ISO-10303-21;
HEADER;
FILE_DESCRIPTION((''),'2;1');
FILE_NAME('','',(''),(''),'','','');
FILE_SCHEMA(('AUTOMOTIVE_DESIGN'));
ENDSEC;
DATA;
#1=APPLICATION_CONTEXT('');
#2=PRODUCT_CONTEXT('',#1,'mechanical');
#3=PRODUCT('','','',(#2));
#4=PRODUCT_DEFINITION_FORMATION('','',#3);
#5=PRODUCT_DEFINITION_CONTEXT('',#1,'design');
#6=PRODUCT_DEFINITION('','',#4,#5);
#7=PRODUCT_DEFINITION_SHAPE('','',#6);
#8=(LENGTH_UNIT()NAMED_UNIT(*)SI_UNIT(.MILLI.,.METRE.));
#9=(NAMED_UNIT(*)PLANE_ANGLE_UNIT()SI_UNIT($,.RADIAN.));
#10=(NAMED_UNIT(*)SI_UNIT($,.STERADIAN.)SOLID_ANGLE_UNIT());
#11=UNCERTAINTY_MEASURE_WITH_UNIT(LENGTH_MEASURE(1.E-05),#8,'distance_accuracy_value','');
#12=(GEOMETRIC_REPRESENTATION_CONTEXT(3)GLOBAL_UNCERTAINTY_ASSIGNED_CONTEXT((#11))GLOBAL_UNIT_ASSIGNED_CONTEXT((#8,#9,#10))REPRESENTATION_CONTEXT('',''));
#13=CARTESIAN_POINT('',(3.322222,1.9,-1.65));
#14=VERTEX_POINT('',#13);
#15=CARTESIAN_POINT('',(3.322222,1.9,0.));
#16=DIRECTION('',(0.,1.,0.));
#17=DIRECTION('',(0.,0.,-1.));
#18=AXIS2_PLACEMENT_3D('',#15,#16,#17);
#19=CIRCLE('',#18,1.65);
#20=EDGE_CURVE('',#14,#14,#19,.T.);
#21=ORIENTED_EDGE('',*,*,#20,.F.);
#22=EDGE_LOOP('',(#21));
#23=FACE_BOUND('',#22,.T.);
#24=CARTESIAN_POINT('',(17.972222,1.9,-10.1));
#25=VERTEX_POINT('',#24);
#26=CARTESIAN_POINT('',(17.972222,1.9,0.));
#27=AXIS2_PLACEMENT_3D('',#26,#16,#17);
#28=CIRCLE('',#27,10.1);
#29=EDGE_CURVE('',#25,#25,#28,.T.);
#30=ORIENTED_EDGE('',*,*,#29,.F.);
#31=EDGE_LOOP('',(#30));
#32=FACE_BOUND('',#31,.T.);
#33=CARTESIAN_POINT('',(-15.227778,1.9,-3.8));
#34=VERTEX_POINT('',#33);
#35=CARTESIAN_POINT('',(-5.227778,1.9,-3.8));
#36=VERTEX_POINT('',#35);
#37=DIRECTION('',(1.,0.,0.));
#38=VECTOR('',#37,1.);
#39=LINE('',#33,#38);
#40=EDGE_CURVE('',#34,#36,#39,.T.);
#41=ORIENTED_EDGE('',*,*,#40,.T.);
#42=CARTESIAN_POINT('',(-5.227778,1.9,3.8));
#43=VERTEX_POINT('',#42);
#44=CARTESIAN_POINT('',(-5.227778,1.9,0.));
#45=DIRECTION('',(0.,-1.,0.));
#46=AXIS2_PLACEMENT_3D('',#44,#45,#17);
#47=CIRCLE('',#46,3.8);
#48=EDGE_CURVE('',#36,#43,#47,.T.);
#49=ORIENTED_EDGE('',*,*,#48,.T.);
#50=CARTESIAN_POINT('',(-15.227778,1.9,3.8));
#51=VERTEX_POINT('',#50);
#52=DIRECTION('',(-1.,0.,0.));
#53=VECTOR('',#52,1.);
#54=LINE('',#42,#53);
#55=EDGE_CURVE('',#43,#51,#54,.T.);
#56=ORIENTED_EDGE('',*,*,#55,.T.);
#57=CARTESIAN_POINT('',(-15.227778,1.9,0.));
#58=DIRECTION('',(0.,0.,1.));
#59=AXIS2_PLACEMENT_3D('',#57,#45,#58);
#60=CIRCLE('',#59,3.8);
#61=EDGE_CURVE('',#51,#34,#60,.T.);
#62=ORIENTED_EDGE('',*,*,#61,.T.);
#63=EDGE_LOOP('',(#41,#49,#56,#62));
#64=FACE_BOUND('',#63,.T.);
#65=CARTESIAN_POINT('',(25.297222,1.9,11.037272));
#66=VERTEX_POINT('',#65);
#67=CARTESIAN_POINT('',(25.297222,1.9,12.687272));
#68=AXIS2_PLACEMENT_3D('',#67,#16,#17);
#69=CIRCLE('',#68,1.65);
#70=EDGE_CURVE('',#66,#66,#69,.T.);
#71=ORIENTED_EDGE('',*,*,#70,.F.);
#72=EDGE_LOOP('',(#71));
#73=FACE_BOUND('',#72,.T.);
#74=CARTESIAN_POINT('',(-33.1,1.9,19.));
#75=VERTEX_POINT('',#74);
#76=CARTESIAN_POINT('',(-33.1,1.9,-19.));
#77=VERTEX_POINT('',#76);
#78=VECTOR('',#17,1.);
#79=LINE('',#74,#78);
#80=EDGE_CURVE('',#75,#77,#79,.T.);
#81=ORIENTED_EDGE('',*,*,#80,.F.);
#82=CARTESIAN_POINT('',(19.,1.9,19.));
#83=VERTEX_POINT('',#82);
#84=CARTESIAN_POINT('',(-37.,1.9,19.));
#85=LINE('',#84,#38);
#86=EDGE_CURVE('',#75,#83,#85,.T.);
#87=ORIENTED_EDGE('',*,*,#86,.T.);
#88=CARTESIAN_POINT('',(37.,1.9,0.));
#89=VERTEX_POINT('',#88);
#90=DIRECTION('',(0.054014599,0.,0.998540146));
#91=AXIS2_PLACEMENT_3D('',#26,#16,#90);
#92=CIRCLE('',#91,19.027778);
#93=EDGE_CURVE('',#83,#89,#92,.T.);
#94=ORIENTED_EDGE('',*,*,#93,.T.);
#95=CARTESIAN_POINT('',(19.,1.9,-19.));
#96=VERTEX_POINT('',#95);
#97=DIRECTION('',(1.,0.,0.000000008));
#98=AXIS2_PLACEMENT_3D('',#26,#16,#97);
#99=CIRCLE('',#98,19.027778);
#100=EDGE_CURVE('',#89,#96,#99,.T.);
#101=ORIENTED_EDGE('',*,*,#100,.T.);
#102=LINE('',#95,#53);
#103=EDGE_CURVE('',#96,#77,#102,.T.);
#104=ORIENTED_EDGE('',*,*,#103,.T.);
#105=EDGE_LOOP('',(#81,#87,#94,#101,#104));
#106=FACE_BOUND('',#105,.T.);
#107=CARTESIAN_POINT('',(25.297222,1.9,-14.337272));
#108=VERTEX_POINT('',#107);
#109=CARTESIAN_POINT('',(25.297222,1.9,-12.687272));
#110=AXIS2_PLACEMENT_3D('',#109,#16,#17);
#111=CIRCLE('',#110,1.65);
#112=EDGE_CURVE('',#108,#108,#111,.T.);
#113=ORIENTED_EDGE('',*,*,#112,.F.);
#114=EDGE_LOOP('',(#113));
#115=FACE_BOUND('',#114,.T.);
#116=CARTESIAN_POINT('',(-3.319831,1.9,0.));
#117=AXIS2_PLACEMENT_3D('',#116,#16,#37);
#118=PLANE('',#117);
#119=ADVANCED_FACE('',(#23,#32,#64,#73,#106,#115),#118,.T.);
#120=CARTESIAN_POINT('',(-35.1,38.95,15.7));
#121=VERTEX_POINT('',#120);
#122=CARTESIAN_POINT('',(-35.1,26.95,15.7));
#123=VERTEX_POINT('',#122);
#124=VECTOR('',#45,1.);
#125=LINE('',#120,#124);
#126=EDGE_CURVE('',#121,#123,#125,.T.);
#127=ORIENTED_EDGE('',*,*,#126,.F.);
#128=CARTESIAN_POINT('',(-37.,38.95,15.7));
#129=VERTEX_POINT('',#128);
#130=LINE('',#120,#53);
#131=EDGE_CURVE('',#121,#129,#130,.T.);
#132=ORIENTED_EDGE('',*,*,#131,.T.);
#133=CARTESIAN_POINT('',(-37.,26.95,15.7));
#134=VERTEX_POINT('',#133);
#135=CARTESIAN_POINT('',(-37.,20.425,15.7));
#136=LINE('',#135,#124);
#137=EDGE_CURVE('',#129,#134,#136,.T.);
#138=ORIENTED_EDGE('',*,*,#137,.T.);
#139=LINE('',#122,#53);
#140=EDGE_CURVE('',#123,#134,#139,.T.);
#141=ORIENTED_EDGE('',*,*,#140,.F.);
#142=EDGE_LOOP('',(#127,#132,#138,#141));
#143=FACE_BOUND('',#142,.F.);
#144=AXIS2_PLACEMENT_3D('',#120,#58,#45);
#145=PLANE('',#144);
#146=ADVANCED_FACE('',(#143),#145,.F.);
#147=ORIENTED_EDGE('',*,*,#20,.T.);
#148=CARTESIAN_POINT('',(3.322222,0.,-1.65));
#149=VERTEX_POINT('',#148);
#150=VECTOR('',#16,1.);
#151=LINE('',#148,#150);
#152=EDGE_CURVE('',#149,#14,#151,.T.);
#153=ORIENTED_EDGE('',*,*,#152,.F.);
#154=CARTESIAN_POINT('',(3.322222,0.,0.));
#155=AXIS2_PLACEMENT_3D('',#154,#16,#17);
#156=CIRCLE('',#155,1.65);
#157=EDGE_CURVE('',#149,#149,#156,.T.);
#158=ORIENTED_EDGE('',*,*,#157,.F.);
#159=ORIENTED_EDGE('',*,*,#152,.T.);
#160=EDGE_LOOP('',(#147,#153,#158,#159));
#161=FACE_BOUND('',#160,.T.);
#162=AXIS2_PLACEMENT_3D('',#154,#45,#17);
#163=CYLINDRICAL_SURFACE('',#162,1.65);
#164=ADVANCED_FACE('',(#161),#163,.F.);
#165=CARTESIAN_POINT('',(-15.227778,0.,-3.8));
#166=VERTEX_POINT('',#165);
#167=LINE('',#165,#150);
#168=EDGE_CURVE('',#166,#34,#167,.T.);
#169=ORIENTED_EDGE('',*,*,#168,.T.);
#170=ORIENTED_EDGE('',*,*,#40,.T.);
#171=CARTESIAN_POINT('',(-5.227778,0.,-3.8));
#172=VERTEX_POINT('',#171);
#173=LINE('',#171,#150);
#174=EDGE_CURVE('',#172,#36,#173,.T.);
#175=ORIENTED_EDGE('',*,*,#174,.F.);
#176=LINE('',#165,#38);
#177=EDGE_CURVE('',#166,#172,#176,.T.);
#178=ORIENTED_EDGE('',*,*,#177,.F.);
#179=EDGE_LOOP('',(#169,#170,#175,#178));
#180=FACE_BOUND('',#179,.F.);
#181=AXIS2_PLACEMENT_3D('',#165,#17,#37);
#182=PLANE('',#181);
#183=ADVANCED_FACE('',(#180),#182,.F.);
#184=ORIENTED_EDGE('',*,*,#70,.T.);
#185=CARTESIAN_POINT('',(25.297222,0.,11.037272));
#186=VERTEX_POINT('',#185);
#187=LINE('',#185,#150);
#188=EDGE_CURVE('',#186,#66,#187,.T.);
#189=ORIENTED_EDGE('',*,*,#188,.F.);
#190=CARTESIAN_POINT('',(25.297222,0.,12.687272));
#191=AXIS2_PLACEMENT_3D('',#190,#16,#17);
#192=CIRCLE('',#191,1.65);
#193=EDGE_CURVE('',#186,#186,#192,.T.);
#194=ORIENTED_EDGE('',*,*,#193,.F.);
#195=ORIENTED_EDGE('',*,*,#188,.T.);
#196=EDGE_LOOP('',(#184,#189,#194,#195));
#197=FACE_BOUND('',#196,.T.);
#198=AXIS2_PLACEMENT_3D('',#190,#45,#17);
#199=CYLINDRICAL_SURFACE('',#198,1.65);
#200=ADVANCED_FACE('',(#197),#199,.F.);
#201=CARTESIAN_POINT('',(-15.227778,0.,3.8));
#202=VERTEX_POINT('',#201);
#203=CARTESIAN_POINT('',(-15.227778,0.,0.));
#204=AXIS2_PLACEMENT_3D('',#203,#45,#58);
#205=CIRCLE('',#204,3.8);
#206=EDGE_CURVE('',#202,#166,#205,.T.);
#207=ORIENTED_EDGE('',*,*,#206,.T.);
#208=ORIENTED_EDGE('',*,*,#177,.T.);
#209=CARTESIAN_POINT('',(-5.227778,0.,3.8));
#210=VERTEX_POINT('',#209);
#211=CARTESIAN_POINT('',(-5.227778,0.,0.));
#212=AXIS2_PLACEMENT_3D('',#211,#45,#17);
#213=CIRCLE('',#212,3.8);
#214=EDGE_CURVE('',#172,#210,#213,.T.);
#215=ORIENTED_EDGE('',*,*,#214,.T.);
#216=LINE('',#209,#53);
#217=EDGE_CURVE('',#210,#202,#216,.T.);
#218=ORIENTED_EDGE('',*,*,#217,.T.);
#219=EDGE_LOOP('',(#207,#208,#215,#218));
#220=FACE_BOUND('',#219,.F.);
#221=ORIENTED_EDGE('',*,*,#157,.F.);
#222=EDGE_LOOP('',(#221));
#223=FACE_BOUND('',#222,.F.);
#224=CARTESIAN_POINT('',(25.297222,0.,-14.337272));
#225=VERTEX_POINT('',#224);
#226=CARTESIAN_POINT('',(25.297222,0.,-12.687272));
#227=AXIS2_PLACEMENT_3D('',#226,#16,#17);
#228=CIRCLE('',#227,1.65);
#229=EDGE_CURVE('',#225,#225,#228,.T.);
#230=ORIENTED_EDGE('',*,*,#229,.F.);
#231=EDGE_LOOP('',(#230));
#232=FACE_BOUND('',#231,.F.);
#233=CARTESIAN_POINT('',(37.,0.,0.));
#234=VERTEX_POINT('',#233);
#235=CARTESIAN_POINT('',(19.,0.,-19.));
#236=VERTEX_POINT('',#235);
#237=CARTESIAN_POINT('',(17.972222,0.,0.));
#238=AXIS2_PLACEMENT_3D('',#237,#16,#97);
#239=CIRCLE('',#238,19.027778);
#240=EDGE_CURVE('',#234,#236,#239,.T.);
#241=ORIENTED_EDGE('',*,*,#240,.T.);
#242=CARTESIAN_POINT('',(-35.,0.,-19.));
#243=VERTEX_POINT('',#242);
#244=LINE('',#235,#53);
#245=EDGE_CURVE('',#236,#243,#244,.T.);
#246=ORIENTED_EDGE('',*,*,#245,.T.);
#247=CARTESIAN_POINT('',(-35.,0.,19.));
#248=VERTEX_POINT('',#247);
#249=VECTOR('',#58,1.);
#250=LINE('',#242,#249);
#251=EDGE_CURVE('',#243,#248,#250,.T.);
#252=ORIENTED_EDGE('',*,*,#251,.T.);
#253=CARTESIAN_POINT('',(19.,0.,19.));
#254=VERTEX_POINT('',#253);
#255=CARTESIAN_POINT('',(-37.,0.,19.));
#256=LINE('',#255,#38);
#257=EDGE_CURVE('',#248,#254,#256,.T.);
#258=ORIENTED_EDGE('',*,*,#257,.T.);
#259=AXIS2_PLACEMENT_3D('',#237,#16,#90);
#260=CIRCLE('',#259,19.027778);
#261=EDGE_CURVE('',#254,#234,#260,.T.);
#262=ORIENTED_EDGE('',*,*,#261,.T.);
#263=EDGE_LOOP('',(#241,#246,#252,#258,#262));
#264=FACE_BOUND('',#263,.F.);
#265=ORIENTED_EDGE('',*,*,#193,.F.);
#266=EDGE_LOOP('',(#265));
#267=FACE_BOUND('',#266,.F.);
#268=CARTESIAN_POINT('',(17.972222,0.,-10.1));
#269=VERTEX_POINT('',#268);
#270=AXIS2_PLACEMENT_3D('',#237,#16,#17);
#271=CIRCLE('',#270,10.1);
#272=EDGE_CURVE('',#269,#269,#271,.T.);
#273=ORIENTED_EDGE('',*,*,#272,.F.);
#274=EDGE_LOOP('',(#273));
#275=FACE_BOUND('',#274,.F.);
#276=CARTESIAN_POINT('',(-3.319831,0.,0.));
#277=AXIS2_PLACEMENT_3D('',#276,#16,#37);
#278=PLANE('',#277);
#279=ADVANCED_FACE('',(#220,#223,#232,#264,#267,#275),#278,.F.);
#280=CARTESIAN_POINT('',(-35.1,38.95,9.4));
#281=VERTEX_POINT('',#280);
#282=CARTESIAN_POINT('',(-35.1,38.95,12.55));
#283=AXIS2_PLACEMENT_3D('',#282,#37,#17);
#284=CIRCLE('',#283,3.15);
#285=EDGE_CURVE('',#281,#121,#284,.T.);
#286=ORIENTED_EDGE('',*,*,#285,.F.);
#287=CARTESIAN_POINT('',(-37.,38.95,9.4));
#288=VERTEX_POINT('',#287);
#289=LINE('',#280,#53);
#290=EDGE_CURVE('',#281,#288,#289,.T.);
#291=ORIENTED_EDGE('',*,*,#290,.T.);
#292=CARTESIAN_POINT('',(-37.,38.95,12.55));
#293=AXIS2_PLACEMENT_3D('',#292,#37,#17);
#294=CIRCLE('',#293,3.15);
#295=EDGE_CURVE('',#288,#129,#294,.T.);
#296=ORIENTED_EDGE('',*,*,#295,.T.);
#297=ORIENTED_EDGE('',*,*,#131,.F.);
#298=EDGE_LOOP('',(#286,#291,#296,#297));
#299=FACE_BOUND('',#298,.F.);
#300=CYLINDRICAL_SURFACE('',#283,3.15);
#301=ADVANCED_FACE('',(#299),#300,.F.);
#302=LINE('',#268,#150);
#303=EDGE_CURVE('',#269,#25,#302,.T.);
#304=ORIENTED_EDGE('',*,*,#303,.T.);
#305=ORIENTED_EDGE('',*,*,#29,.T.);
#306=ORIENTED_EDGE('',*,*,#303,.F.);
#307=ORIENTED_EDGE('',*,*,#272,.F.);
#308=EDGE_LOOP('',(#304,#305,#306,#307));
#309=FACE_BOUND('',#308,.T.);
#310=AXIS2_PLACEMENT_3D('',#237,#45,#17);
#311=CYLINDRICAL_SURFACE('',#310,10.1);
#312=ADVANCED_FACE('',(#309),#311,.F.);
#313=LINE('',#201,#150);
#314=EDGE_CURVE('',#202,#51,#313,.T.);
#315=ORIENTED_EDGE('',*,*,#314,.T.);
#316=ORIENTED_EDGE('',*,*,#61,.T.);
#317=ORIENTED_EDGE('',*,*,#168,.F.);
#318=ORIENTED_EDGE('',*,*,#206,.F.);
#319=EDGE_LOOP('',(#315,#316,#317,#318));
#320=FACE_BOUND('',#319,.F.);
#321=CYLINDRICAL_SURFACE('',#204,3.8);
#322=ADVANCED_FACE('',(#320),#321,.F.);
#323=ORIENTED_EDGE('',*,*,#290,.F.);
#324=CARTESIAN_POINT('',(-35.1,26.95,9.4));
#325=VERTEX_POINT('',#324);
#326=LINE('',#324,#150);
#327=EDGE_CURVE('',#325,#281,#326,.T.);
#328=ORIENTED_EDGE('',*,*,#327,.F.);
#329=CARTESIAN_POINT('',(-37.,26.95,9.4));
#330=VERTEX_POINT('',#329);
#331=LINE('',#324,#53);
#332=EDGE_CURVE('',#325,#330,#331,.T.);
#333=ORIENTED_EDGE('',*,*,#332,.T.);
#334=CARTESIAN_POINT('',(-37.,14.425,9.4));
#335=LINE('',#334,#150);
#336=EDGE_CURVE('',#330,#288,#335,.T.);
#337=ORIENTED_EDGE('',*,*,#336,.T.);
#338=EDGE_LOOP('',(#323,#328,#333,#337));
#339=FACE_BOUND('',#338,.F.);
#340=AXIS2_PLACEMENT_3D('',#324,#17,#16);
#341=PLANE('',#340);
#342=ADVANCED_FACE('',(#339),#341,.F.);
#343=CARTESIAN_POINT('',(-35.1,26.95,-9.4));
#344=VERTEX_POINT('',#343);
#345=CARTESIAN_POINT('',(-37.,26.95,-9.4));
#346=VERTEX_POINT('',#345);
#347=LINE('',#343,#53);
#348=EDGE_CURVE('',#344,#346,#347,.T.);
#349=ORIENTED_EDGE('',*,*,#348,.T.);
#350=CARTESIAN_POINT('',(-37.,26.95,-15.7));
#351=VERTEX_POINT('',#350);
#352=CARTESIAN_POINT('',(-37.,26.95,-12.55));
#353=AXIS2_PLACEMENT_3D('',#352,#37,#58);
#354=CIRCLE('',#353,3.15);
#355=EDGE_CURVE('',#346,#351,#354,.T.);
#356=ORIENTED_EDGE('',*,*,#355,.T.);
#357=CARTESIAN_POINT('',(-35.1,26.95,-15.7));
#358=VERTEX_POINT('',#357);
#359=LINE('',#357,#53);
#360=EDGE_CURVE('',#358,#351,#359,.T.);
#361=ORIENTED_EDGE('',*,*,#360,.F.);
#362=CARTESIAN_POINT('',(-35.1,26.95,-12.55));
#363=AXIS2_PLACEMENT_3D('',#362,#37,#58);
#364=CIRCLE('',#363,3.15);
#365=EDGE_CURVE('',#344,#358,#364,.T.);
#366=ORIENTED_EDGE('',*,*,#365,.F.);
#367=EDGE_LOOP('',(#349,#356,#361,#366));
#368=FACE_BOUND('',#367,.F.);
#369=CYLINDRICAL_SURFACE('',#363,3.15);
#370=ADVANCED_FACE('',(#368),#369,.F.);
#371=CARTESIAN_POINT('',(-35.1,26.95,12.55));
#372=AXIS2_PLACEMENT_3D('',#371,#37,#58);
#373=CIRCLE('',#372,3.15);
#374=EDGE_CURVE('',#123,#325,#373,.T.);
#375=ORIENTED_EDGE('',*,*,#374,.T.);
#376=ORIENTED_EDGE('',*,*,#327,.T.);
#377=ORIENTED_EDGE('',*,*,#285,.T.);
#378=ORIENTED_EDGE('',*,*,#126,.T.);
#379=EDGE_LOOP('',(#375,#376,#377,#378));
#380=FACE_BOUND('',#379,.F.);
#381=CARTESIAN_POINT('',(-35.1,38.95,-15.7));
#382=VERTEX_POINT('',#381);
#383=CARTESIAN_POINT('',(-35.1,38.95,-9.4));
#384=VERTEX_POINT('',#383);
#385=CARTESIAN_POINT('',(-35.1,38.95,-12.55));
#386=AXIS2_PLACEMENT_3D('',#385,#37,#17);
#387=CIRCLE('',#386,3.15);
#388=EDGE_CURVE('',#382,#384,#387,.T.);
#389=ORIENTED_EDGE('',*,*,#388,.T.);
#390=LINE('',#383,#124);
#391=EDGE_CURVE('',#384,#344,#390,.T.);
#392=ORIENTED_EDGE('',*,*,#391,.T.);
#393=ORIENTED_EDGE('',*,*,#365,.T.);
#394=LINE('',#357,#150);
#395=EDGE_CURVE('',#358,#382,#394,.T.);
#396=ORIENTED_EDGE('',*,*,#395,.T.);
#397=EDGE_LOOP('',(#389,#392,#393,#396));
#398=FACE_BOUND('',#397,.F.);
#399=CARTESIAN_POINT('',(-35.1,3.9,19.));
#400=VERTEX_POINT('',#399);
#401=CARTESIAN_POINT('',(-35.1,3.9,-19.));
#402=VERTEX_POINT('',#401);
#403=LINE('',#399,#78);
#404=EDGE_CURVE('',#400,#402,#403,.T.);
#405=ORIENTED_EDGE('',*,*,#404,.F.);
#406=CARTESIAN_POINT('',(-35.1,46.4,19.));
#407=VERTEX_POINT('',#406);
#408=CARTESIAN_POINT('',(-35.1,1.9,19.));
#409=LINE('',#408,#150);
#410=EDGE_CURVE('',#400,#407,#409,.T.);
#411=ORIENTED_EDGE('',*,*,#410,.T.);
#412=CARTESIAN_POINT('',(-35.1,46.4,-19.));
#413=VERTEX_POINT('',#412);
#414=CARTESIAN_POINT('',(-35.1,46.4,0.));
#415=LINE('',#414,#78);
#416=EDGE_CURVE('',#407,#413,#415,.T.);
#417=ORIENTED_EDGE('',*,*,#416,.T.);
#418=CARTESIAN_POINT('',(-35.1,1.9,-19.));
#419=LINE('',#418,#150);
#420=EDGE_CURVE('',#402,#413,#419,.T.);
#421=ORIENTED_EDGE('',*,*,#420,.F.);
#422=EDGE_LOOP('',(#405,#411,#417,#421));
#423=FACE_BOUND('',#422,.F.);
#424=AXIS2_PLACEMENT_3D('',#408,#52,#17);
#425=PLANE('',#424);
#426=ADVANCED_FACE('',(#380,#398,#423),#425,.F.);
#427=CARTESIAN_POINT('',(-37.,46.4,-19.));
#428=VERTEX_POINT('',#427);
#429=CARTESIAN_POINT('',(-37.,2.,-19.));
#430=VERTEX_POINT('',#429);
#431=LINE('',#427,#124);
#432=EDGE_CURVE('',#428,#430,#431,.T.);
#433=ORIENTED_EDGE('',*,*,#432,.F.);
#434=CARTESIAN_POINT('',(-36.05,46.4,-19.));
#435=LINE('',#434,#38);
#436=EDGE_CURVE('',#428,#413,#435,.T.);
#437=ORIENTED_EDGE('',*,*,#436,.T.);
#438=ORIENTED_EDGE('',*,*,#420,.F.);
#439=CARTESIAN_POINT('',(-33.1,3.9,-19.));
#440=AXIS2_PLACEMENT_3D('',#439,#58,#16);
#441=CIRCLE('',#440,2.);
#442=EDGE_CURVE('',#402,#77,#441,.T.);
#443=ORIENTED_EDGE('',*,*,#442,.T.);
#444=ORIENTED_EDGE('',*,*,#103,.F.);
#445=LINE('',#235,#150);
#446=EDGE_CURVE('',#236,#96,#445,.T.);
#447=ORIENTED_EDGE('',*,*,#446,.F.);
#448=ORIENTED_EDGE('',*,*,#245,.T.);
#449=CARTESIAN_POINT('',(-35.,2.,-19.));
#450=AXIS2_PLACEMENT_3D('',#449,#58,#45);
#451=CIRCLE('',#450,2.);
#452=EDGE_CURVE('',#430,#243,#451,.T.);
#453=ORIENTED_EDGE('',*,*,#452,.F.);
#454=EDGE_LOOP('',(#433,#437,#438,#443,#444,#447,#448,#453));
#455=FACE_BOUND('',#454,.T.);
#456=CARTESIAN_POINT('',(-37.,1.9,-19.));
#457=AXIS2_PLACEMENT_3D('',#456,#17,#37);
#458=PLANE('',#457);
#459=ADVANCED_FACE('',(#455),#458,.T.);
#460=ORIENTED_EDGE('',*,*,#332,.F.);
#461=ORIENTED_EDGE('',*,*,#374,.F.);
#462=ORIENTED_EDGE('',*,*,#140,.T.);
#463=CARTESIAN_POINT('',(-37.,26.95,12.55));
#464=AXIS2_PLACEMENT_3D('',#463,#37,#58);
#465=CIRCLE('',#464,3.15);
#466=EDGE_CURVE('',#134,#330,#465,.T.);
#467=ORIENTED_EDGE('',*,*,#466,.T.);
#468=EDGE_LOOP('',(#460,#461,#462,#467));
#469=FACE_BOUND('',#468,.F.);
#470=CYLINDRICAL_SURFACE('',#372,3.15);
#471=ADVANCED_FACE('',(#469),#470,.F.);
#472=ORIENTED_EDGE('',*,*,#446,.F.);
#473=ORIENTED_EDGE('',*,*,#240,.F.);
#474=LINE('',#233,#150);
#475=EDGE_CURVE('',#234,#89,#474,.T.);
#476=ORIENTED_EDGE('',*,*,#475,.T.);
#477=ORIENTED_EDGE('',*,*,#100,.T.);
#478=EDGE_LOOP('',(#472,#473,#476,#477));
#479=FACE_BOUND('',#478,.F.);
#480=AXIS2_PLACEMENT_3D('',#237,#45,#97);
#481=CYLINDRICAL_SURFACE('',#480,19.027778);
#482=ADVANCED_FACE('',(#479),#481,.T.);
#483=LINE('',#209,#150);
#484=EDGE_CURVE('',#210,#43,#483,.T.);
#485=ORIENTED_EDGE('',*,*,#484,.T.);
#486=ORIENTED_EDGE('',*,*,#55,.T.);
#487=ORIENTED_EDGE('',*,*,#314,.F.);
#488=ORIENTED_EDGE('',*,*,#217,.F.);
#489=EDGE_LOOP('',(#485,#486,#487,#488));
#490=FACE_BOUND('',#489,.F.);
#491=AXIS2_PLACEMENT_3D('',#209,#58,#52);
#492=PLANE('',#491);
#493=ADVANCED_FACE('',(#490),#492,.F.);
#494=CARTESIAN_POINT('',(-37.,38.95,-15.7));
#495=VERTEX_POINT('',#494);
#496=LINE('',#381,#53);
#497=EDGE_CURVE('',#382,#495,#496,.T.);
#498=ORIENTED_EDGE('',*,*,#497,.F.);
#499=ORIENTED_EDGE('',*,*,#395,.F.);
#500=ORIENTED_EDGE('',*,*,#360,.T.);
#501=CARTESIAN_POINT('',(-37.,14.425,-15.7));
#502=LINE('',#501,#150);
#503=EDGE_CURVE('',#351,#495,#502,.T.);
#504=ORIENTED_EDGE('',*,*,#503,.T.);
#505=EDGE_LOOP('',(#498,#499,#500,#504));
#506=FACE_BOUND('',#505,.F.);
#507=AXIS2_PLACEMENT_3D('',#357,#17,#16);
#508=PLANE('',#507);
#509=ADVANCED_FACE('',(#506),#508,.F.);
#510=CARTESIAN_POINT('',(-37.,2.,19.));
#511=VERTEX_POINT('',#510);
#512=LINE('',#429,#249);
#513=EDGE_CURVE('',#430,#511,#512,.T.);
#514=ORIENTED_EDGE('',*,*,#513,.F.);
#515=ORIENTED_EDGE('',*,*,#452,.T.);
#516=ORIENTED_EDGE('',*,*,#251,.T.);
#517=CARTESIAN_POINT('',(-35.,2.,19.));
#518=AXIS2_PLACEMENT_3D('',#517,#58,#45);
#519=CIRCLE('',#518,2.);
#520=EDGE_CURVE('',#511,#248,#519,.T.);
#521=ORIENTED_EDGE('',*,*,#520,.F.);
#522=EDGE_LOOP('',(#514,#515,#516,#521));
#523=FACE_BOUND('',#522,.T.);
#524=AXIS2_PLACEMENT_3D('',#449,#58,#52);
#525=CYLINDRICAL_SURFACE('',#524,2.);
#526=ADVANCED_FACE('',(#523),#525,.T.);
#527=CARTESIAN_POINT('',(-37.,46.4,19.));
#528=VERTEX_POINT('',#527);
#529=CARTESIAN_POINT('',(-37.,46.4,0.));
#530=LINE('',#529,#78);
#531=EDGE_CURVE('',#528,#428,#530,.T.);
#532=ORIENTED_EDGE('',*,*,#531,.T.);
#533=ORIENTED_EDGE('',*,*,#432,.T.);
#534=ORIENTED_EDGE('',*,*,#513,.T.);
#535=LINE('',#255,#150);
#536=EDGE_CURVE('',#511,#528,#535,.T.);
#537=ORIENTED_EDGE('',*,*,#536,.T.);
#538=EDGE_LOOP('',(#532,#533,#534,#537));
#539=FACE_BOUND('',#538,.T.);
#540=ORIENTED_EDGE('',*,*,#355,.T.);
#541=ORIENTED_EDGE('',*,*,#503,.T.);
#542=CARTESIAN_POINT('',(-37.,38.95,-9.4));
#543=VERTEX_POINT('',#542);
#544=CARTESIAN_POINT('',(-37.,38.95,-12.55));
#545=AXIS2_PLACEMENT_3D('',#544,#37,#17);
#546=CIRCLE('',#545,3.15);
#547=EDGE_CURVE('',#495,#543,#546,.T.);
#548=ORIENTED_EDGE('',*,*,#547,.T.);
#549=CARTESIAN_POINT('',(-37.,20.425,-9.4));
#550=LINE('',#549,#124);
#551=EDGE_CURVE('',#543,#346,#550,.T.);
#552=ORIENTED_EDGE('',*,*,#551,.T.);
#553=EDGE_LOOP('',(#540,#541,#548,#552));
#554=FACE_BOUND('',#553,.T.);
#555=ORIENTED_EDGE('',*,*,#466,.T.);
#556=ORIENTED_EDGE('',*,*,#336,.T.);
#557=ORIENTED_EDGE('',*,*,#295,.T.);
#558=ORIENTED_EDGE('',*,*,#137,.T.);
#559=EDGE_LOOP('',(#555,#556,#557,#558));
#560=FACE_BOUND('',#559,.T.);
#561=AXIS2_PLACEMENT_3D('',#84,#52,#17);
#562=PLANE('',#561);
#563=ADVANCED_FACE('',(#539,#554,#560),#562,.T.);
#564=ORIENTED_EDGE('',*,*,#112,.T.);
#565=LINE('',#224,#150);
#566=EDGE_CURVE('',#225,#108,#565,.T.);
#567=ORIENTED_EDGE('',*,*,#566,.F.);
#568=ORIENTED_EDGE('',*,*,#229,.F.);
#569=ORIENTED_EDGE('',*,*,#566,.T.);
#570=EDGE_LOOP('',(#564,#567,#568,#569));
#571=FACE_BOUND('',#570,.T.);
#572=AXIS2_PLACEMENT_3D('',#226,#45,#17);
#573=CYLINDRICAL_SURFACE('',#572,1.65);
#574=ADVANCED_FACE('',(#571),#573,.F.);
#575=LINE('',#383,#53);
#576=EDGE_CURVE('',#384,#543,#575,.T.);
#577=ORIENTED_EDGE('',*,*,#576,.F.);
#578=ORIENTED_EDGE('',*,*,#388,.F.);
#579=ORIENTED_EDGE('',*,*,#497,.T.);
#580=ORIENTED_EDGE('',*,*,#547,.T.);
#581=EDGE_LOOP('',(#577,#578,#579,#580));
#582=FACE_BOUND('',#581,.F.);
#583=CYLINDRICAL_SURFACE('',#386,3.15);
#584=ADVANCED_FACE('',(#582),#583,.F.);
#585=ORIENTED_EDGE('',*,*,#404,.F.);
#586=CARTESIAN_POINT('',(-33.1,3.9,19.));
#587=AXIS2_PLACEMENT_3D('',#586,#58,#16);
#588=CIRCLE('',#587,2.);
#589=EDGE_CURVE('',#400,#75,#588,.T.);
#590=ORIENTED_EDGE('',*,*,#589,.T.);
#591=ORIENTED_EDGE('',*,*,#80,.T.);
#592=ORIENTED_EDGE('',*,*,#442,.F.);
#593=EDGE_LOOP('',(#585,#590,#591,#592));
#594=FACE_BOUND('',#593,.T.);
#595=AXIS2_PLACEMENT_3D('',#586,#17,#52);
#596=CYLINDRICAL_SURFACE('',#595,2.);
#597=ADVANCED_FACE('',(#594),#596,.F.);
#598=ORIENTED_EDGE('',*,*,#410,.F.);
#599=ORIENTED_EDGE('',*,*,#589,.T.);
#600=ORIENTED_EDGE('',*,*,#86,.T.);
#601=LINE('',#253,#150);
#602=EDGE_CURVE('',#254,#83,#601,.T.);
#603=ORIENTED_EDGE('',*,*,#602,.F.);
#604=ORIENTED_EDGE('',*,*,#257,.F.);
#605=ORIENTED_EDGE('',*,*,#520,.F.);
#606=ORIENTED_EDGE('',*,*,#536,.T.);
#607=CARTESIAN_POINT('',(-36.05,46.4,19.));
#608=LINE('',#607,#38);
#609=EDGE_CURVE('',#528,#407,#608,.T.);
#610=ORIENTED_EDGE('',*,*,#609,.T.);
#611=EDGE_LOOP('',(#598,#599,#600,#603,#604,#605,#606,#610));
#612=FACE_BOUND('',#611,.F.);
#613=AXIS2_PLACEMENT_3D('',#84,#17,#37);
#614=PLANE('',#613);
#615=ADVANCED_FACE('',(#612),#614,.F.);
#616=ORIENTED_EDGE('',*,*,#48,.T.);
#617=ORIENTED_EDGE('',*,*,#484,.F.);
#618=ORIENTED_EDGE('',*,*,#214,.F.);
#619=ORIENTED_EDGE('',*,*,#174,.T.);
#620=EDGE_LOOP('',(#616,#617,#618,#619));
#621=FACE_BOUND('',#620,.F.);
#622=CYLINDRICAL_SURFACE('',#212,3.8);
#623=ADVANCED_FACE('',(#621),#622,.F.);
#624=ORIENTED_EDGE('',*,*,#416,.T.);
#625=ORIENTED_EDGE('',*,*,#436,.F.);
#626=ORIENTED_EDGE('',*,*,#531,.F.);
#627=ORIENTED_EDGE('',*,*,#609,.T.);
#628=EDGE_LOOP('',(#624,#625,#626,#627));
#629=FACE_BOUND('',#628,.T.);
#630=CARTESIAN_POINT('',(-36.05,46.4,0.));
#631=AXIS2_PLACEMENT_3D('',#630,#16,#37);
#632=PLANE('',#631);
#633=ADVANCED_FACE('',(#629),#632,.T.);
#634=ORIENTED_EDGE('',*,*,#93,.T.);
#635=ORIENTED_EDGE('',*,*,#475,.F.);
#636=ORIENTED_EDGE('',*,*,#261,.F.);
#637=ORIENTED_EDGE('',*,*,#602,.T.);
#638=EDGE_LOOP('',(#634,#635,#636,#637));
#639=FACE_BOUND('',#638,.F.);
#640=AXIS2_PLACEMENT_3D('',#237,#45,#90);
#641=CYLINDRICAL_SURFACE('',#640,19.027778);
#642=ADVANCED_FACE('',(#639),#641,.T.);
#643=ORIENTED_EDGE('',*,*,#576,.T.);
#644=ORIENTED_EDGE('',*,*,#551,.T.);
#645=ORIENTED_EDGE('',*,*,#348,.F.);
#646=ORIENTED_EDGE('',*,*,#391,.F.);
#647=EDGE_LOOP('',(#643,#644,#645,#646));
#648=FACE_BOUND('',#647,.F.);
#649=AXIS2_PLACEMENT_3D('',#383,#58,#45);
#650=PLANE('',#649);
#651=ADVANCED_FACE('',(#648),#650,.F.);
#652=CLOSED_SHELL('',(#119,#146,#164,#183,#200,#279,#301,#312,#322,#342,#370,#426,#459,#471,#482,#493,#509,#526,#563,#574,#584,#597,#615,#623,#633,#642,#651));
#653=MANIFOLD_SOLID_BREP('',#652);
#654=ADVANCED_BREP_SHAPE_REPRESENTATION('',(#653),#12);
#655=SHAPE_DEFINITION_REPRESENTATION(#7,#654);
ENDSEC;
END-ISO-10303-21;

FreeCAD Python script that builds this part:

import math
import FreeCAD as App
import Part
import Sketcher
from FreeCAD import Vector


def edges_at(feature, points):
    """Names of the edges that pass closest to the given points."""
    edges = feature.Shape.Edges
    near = lambda p: min(range(len(edges)), key=lambda i: edges[i].distToShape(Part.Vertex(*p))[0])
    return sorted({f"Edge{near(p) + 1}" for p in points})


def add_polygon(sketch, points):
    """Adds a closed chain of lines whose ends are joined by coincident constraints."""
    first, n = sketch.GeometryCount, len(points)
    for a, b in zip(points, points[1:] + points[:1]):
        sketch.addGeometry(Part.LineSegment(App.Vector(*a, 0), App.Vector(*b, 0)), False)
    for i in range(n):
        sketch.addConstraint(Sketcher.Constraint("Coincident", first + i, 2, first + (i + 1) % n, 1))

doc = App.newDocument("Part")
params = doc.addObject("Spreadsheet::Sheet", "Params")
for row, (alias, value) in enumerate([
    ("sketch1_diameter", "3.3 mm"),
    ("sketch1_diameter2", "20.2 mm"),
    ("sketch1_radius", "3.8 mm"),
    ("sketch1_width", "56 mm"),
    ("sketch1_width2", "10 mm"),
    ("pad1_length", "1.9 mm"),
    ("sketch2_height", "38 mm"),
    ("sketch2_width", "1.9 mm"),
    ("pad2_length", "44.5 mm"),
    ("sketch3_radius", "3.15 mm"),
    ("sketch4_radius", "3.15 mm"),
    ("sketch5_radius", "3.15 mm"),
    ("pocket3_length", "1.9 mm"),
    ("sketch6_radius", "3.15 mm"),
    ("pocket4_length", "1.9 mm"),
    ("sketch7_width", "12 mm"),
    ("sketch7_radius", "3.15 mm"),
    ("sketch8_radius", "3.15 mm"),
    ("sketch9_radius", "3.15 mm"),
    ("sketch10_width", "12 mm"),
    ("sketch10_radius", "3.15 mm"),
    ("sketch11_radius", "3.15 mm"),
    ("sketch12_radius", "3.15 mm"),
    ("sketch13_radius", "3.15 mm"),
    ("pocket11_length", "1.9 mm"),
    ("sketch14_radius", "3.15 mm"),
    ("pocket12_length", "1.9 mm"),
    ("sketch15_radius", "3.15 mm"),
    ("sketch16_radius", "3.15 mm"),
    ("sketch17_radius", "3.15 mm"),
    ("pocket15_length", "1.9 mm"),
    ("sketch18_radius", "3.15 mm"),
    ("pocket16_length", "1.9 mm"),
    ("sketch19_radius", "3.15 mm"),
    ("pocket17_length", "1.9 mm"),
    ("sketch20_radius", "3.15 mm"),
    ("pocket18_length", "1.9 mm"),
    ("fillet_radius", "2 mm"),
], start=1):
    params.set(f"A{row}", alias)
    params.set(f"B{row}", "=" + value)
    params.setAlias(f"B{row}", alias)

body = doc.addObject("PartDesign::Body", "Body")
body.AllowCompound = True

sketch1 = body.newObject("Sketcher::SketchObject", "Sketch")
sketch1.AttachmentSupport = (doc.getObject("XZ_Plane"), [""])
sketch1.MapMode = "FlatFace"
sketch1.addGeometry([
    Part.LineSegment(Vector(-37, -19, 0), Vector(-37, 19, 0)),
    Part.LineSegment(Vector(-37, 19, 0), Vector(19, 19, 0)),
    Part.ArcOfCircle(Part.Circle(Vector(18, 0, 0), Vector(0, 0, 1), 19), math.radians(0), math.radians(87)),
    Part.ArcOfCircle(Part.Circle(Vector(18, 0, 0), Vector(0, 0, 1), 19), math.radians(-87), math.radians(0)),
    Part.LineSegment(Vector(19, -19, 0), Vector(-37, -19, 0)),
    Part.Circle(Vector(25.3, 12.7, 0), Vector(0, 0, 1), 1.6),
    Part.LineSegment(Vector(-5.2, 3.8, 0), Vector(-15.2, 3.8, 0)),
    Part.ArcOfCircle(Part.Circle(Vector(-15.2, 0, 0), Vector(0, 0, 1), 3.8), math.radians(90), math.radians(270)),
    Part.LineSegment(Vector(-15.2, -3.8, 0), Vector(-5.2, -3.8, 0)),
    Part.ArcOfCircle(Part.Circle(Vector(-5.2, 0, 0), Vector(0, 0, 1), 3.8), math.radians(-90), math.radians(90)),
    Part.Circle(Vector(3.3, 0, 0), Vector(0, 0, 1), 1.6),
    Part.Circle(Vector(18, 0, 0), Vector(0, 0, 1), 10.1),
    Part.Circle(Vector(25.3, -12.7, 0), Vector(0, 0, 1), 1.6),
], False)
sketch1.addConstraint([
    Sketcher.Constraint("Coincident", 0, 2, 1, 1),
    Sketcher.Constraint("Coincident", 1, 2, 2, 2),
    Sketcher.Constraint("Tangent", 2, 1, 3, 2),
    Sketcher.Constraint("Coincident", 3, 1, 4, 1),
    Sketcher.Constraint("Coincident", 4, 2, 0, 1),
    Sketcher.Constraint("Tangent", 6, 2, 7, 1),
    Sketcher.Constraint("Tangent", 7, 2, 8, 1),
    Sketcher.Constraint("Tangent", 8, 2, 9, 1),
    Sketcher.Constraint("Tangent", 9, 2, 6, 1),
    Sketcher.Constraint("Vertical", 0),
    Sketcher.Constraint("Horizontal", 1),
    Sketcher.Constraint("Horizontal", 4),
    Sketcher.Constraint("Horizontal", 6),
    Sketcher.Constraint("Horizontal", 8),
    Sketcher.Constraint("Coincident", 11, 3, 2, 3),
    Sketcher.Constraint("Equal", 2, 3),
    Sketcher.Constraint("Equal", 5, 10),
    Sketcher.Constraint("Equal", 10, 12),
    Sketcher.Constraint("Symmetric", 5, 3, 12, 3, -1),
    Sketcher.Constraint("Symmetric", 1, 2, 3, 1, -1),
    Sketcher.Constraint("PointOnObject", 7, 3, -1),
    Sketcher.Constraint("PointOnObject", 10, 3, -1),
    Sketcher.Constraint("PointOnObject", 2, 1, -1),
    Sketcher.Constraint("Diameter", 5, 3.3),
    Sketcher.Constraint("Diameter", 11, 20.2),
    Sketcher.Constraint("Radius", 7, 3.8),
    Sketcher.Constraint("DistanceX", 1, 1, 1, 2, 56.0),
    Sketcher.Constraint("DistanceX", 6, 2, 6, 1, 10.0),
    Sketcher.Constraint("DistanceY", 0, 1, 0, 2, 38.0),
    Sketcher.Constraint("DistanceX", 0, 2, -1, 1, 37.0),
    Sketcher.Constraint("DistanceX", -1, 1, 2, 1, 37.0),
    Sketcher.Constraint("DistanceX", 7, 3, 3, 3, 33.2),
    Sketcher.Constraint("DistanceX", 9, 3, 10, 3, 8.55),
    Sketcher.Constraint("DistanceX", 3, 3, 5, 3, 7.325),
    Sketcher.Constraint("DistanceY", -1, 1, 5, 3, 12.687272),
])
sketch1.setExpression("Constraints[23]", "Params.sketch1_diameter")
sketch1.setExpression("Constraints[24]", "Params.sketch1_diameter2")
sketch1.setExpression("Constraints[25]", "Params.sketch1_radius")
sketch1.setExpression("Constraints[26]", "Params.sketch1_width")
sketch1.setExpression("Constraints[27]", "Params.sketch1_width2")
pad1 = body.newObject("PartDesign::Pad", "Pad")
pad1.Profile = sketch1
pad1.setExpression("Length", "Params.pad1_length")
pad1.Reversed = True

sketch2 = body.newObject("Sketcher::SketchObject", "Sketch001")
sketch2.AttachmentSupport = (doc.getObject("XZ_Plane"), [""])
sketch2.MapMode = "FlatFace"
sketch2.AttachmentOffset = App.Placement(Vector(0, 0, -1.9), App.Rotation())
add_polygon(sketch2, [(-37, -19), (-37, 19), (-35.1, 19), (-35.1, -19)])
sketch2.addConstraint([
    Sketcher.Constraint("Vertical", 0),
    Sketcher.Constraint("Horizontal", 1),
    Sketcher.Constraint("Vertical", 2),
    Sketcher.Constraint("Horizontal", 3),
    Sketcher.Constraint("DistanceY", 0, 1, 0, 2, 38.0),
    Sketcher.Constraint("DistanceX", 1, 1, 1, 2, 1.9),
    Sketcher.Constraint("DistanceX", 0, 2, -1, 1, 37.0),
    Sketcher.Constraint("DistanceY", -1, 1, 0, 2, 19.0),
])
sketch2.setExpression("Constraints[8]", "Params.sketch2_height")
sketch2.setExpression("Constraints[9]", "Params.sketch2_width")
pad2 = body.newObject("PartDesign::Pad", "Pad001")
pad2.Profile = sketch2
pad2.setExpression("Length", "Params.pad2_length")
pad2.Reversed = True

sketch3 = body.newObject("Sketcher::SketchObject", "Sketch002")
sketch3.AttachmentSupport = (doc.getObject("YZ_Plane"), [""])
sketch3.MapMode = "FlatFace"
sketch3.AttachmentOffset = App.Placement(Vector(0, 0, -35.1), App.Rotation())
sketch3.addGeometry([
    Part.ArcOfCircle(Part.Circle(Vector(39, 12.6, 0), Vector(0, 0, 1), 3.1), math.radians(-90), math.radians(90)),
    Part.LineSegment(Vector(39, 15.7, 0), Vector(39, 9.4, 0)),
], False)
sketch3.addConstraint([
    Sketcher.Constraint("Coincident", 0, 1, 1, 2),
    Sketcher.Constraint("Coincident", 1, 1, 0, 2),
    Sketcher.Constraint("Vertical", 1),
    Sketcher.Constraint("Radius", 0, 3.15),
    Sketcher.Constraint("DistanceY", -1, 1, 0, 1, 9.4),
    Sketcher.Constraint("DistanceX", -1, 1, 0, 3, 38.95),
    Sketcher.Constraint("DistanceX", -1, 1, 0, 1, 38.95),
])
sketch3.setExpression("Constraints[3]", "Params.sketch3_radius")
pocket1 = body.newObject("PartDesign::Pocket", "Pocket")
pocket1.Profile = sketch3
pocket1.Type = "UpToFirst"

sketch4 = body.newObject("Sketcher::SketchObject", "Sketch003")
sketch4.AttachmentSupport = (doc.getObject("YZ_Plane"), [""])
sketch4.MapMode = "FlatFace"
sketch4.AttachmentOffset = App.Placement(Vector(0, 0, -35.1), App.Rotation())
sketch4.addGeometry([
    Part.LineSegment(Vector(39, 9.4, 0), Vector(39, 15.7, 0)),
    Part.ArcOfCircle(Part.Circle(Vector(39, 12.6, 0), Vector(0, 0, 1), 3.1), math.radians(90), math.radians(270)),
], False)
sketch4.addConstraint([
    Sketcher.Constraint("Coincident", 0, 1, 1, 2),
    Sketcher.Constraint("Coincident", 1, 1, 0, 2),
    Sketcher.Constraint("Vertical", 0),
    Sketcher.Constraint("Vertical", 1, 3, 0, 1),
    Sketcher.Constraint("Radius", 1, 3.15),
    Sketcher.Constraint("DistanceY", -1, 1, 0, 1, 9.4),
    Sketcher.Constraint("DistanceX", -1, 1, 1, 3, 38.95),
])
sketch4.setExpression("Constraints[4]", "Params.sketch4_radius")
pocket2 = body.newObject("PartDesign::Pocket", "Pocket001")
pocket2.Profile = sketch4
pocket2.Type = "UpToFirst"

sketch5 = body.newObject("Sketcher::SketchObject", "Sketch004")
sketch5.AttachmentSupport = (doc.getObject("YZ_Plane"), [""])
sketch5.MapMode = "FlatFace"
sketch5.AttachmentOffset = App.Placement(Vector(0, 0, -35.1), App.Rotation())
sketch5.addGeometry([
    Part.ArcOfCircle(Part.Circle(Vector(39, 12.6, 0), Vector(0, 0, 1), 3.1), math.radians(-90), math.radians(90)),
    Part.LineSegment(Vector(39, 15.7, 0), Vector(39, 9.4, 0)),
], False)
sketch5.addConstraint([
    Sketcher.Constraint("Coincident", 0, 1, 1, 2),
    Sketcher.Constraint("Coincident", 1, 1, 0, 2),
    Sketcher.Constraint("Vertical", 1),
    Sketcher.Constraint("Radius", 0, 3.15),
    Sketcher.Constraint("DistanceY", -1, 1, 0, 1, 9.4),
    Sketcher.Constraint("DistanceX", -1, 1, 0, 3, 38.95),
    Sketcher.Constraint("DistanceX", -1, 1, 0, 1, 38.95),
])
sketch5.setExpression("Constraints[3]", "Params.sketch5_radius")
pocket3 = body.newObject("PartDesign::Pocket", "Pocket002")
pocket3.Profile = sketch5
pocket3.setExpression("Length", "Params.pocket3_length")

sketch6 = body.newObject("Sketcher::SketchObject", "Sketch005")
sketch6.AttachmentSupport = (doc.getObject("YZ_Plane"), [""])
sketch6.MapMode = "FlatFace"
sketch6.AttachmentOffset = App.Placement(Vector(0, 0, -35.1), App.Rotation())
sketch6.addGeometry([
    Part.LineSegment(Vector(39, 9.4, 0), Vector(39, 15.7, 0)),
    Part.ArcOfCircle(Part.Circle(Vector(39, 12.6, 0), Vector(0, 0, 1), 3.1), math.radians(90), math.radians(270)),
], False)
sketch6.addConstraint([
    Sketcher.Constraint("Coincident", 0, 1, 1, 2),
    Sketcher.Constraint("Coincident", 1, 1, 0, 2),
    Sketcher.Constraint("Vertical", 0),
    Sketcher.Constraint("Vertical", 1, 3, 0, 1),
    Sketcher.Constraint("Radius", 1, 3.15),
    Sketcher.Constraint("DistanceY", -1, 1, 0, 1, 9.4),
    Sketcher.Constraint("DistanceX", -1, 1, 1, 3, 38.95),
])
sketch6.setExpression("Constraints[4]", "Params.sketch6_radius")
pocket4 = body.newObject("PartDesign::Pocket", "Pocket003")
pocket4.Profile = sketch6
pocket4.setExpression("Length", "Params.pocket4_length")

sketch7 = body.newObject("Sketcher::SketchObject", "Sketch006")
sketch7.AttachmentSupport = (doc.getObject("YZ_Plane"), [""])
sketch7.MapMode = "FlatFace"
sketch7.AttachmentOffset = App.Placement(Vector(0, 0, -35.1), App.Rotation())
sketch7.addGeometry([
    Part.LineSegment(Vector(39, 15.7, 0), Vector(26.9, 15.7, 0)),
    Part.ArcOfCircle(Part.Circle(Vector(26.9, 12.6, 0), Vector(0, 0, 1), 3.1), math.radians(-90), math.radians(90)),
    Part.LineSegment(Vector(26.9, 9.4, 0), Vector(39, 9.4, 0)),
    Part.ArcOfCircle(Part.Circle(Vector(39, 12.6, 0), Vector(0, 0, 1), 3.1), math.radians(90), math.radians(270)),
], False)
sketch7.addConstraint([
    Sketcher.Constraint("Tangent", 0, 2, 1, 2),
    Sketcher.Constraint("Tangent", 1, 1, 2, 1),
    Sketcher.Constraint("Tangent", 2, 2, 3, 2),
    Sketcher.Constraint("Tangent", 3, 1, 0, 1),
    Sketcher.Constraint("Horizontal", 0),
    Sketcher.Constraint("Horizontal", 2),
    Sketcher.Constraint("DistanceX", 0, 2, 0, 1, 12.0),
    Sketcher.Constraint("Radius", 1, 3.15),
    Sketcher.Constraint("DistanceY", -1, 1, 0, 2, 15.7),
    Sketcher.Constraint("DistanceX", -1, 1, 1, 3, 26.95),
])
sketch7.setExpression("Constraints[6]", "Params.sketch7_width")
sketch7.setExpression("Constraints[7]", "Params.sketch7_radius")
pocket5 = body.newObject("PartDesign::Pocket", "Pocket004")
pocket5.Profile = sketch7
pocket5.Type = "UpToFirst"

sketch8 = body.newObject("Sketcher::SketchObject", "Sketch007")
sketch8.AttachmentSupport = (doc.getObject("YZ_Plane"), [""])
sketch8.MapMode = "FlatFace"
sketch8.AttachmentOffset = App.Placement(Vector(0, 0, -35.1), App.Rotation())
sketch8.addGeometry([
    Part.ArcOfCircle(Part.Circle(Vector(26.9, 12.6, 0), Vector(0, 0, 1), 3.1), math.radians(-90), math.radians(90)),
    Part.LineSegment(Vector(26.9, 15.7, 0), Vector(26.9, 9.4, 0)),
], False)
sketch8.addConstraint([
    Sketcher.Constraint("Coincident", 0, 1, 1, 2),
    Sketcher.Constraint("Coincident", 1, 1, 0, 2),
    Sketcher.Constraint("Vertical", 1),
    Sketcher.Constraint("Radius", 0, 3.15),
    Sketcher.Constraint("DistanceY", -1, 1, 0, 1, 9.4),
    Sketcher.Constraint("DistanceX", -1, 1, 0, 3, 26.95),
    Sketcher.Constraint("DistanceX", -1, 1, 0, 1, 26.95),
])
sketch8.setExpression("Constraints[3]", "Params.sketch8_radius")
pocket6 = body.newObject("PartDesign::Pocket", "Pocket005")
pocket6.Profile = sketch8
pocket6.Type = "UpToFirst"

sketch9 = body.newObject("Sketcher::SketchObject", "Sketch008")
sketch9.AttachmentSupport = (doc.getObject("YZ_Plane"), [""])
sketch9.MapMode = "FlatFace"
sketch9.AttachmentOffset = App.Placement(Vector(0, 0, -35.1), App.Rotation())
sketch9.addGeometry([
    Part.LineSegment(Vector(26.9, 9.4, 0), Vector(26.9, 15.7, 0)),
    Part.ArcOfCircle(Part.Circle(Vector(26.9, 12.6, 0), Vector(0, 0, 1), 3.1), math.radians(90), math.radians(270)),
], False)
sketch9.addConstraint([
    Sketcher.Constraint("Coincident", 0, 1, 1, 2),
    Sketcher.Constraint("Coincident", 1, 1, 0, 2),
    Sketcher.Constraint("Vertical", 0),
    Sketcher.Constraint("Vertical", 1, 3, 0, 1),
    Sketcher.Constraint("Radius", 1, 3.15),
    Sketcher.Constraint("DistanceY", -1, 1, 0, 1, 9.4),
    Sketcher.Constraint("DistanceX", -1, 1, 1, 3, 26.95),
])
sketch9.setExpression("Constraints[4]", "Params.sketch9_radius")
pocket7 = body.newObject("PartDesign::Pocket", "Pocket006")
pocket7.Profile = sketch9
pocket7.Type = "UpToFirst"

sketch10 = body.newObject("Sketcher::SketchObject", "Sketch009")
sketch10.AttachmentSupport = (doc.getObject("YZ_Plane"), [""])
sketch10.MapMode = "FlatFace"
sketch10.AttachmentOffset = App.Placement(Vector(0, 0, -35.1), App.Rotation())
sketch10.addGeometry([
    Part.LineSegment(Vector(39, -9.4, 0), Vector(26.9, -9.4, 0)),
    Part.ArcOfCircle(Part.Circle(Vector(26.9, -12.6, 0), Vector(0, 0, 1), 3.1), math.radians(-90), math.radians(90)),
    Part.LineSegment(Vector(26.9, -15.7, 0), Vector(39, -15.7, 0)),
    Part.ArcOfCircle(Part.Circle(Vector(39, -12.6, 0), Vector(0, 0, 1), 3.1), math.radians(90), math.radians(270)),
], False)
sketch10.addConstraint([
    Sketcher.Constraint("Tangent", 0, 2, 1, 2),
    Sketcher.Constraint("Tangent", 1, 1, 2, 1),
    Sketcher.Constraint("Tangent", 2, 2, 3, 2),
    Sketcher.Constraint("Tangent", 3, 1, 0, 1),
    Sketcher.Constraint("Horizontal", 0),
    Sketcher.Constraint("Horizontal", 2),
    Sketcher.Constraint("DistanceX", 0, 2, 0, 1, 12.0),
    Sketcher.Constraint("Radius", 1, 3.15),
    Sketcher.Constraint("DistanceY", 0, 2, -1, 1, 9.4),
    Sketcher.Constraint("DistanceX", -1, 1, 1, 3, 26.95),
])
sketch10.setExpression("Constraints[6]", "Params.sketch10_width")
sketch10.setExpression("Constraints[7]", "Params.sketch10_radius")
pocket8 = body.newObject("PartDesign::Pocket", "Pocket007")
pocket8.Profile = sketch10
pocket8.Type = "UpToFirst"

sketch11 = body.newObject("Sketcher::SketchObject", "Sketch010")
sketch11.AttachmentSupport = (doc.getObject("YZ_Plane"), [""])
sketch11.MapMode = "FlatFace"
sketch11.AttachmentOffset = App.Placement(Vector(0, 0, -35.1), App.Rotation())
sketch11.addGeometry([
    Part.ArcOfCircle(Part.Circle(Vector(39, -12.6, 0), Vector(0, 0, 1), 3.1), math.radians(-90), math.radians(90)),
    Part.LineSegment(Vector(39, -9.4, 0), Vector(39, -15.7, 0)),
], False)
sketch11.addConstraint([
    Sketcher.Constraint("Coincident", 0, 1, 1, 2),
    Sketcher.Constraint("Coincident", 1, 1, 0, 2),
    Sketcher.Constraint("Vertical", 1),
    Sketcher.Constraint("Radius", 0, 3.15),
    Sketcher.Constraint("DistanceY", 0, 1, -1, 1, 15.7),
    Sketcher.Constraint("DistanceX", -1, 1, 0, 3, 38.95),
    Sketcher.Constraint("DistanceX", -1, 1, 0, 1, 38.95),
])
sketch11.setExpression("Constraints[3]", "Params.sketch11_radius")
pocket9 = body.newObject("PartDesign::Pocket", "Pocket008")
pocket9.Profile = sketch11
pocket9.Type = "UpToFirst"

sketch12 = body.newObject("Sketcher::SketchObject", "Sketch011")
sketch12.AttachmentSupport = (doc.getObject("YZ_Plane"), [""])
sketch12.MapMode = "FlatFace"
sketch12.AttachmentOffset = App.Placement(Vector(0, 0, -35.1), App.Rotation())
sketch12.addGeometry([
    Part.LineSegment(Vector(39, -15.7, 0), Vector(39, -9.4, 0)),
    Part.ArcOfCircle(Part.Circle(Vector(39, -12.6, 0), Vector(0, 0, 1), 3.1), math.radians(90), math.radians(270)),
], False)
sketch12.addConstraint([
    Sketcher.Constraint("Coincident", 0, 1, 1, 2),
    Sketcher.Constraint("Coincident", 1, 1, 0, 2),
    Sketcher.Constraint("Vertical", 0),
    Sketcher.Constraint("Vertical", 1, 3, 0, 1),
    Sketcher.Constraint("Radius", 1, 3.15),
    Sketcher.Constraint("DistanceY", 0, 1, -1, 1, 15.7),
    Sketcher.Constraint("DistanceX", -1, 1, 1, 3, 38.95),
])
sketch12.setExpression("Constraints[4]", "Params.sketch12_radius")
pocket10 = body.newObject("PartDesign::Pocket", "Pocket009")
pocket10.Profile = sketch12
pocket10.Type = "UpToFirst"

sketch13 = body.newObject("Sketcher::SketchObject", "Sketch012")
sketch13.AttachmentSupport = (doc.getObject("YZ_Plane"), [""])
sketch13.MapMode = "FlatFace"
sketch13.AttachmentOffset = App.Placement(Vector(0, 0, -35.1), App.Rotation())
sketch13.addGeometry([
    Part.ArcOfCircle(Part.Circle(Vector(39, -12.6, 0), Vector(0, 0, 1), 3.1), math.radians(-90), math.radians(90)),
    Part.LineSegment(Vector(39, -9.4, 0), Vector(39, -15.7, 0)),
], False)
sketch13.addConstraint([
    Sketcher.Constraint("Coincident", 0, 1, 1, 2),
    Sketcher.Constraint("Coincident", 1, 1, 0, 2),
    Sketcher.Constraint("Vertical", 1),
    Sketcher.Constraint("Radius", 0, 3.15),
    Sketcher.Constraint("DistanceY", 0, 1, -1, 1, 15.7),
    Sketcher.Constraint("DistanceX", -1, 1, 0, 3, 38.95),
    Sketcher.Constraint("DistanceX", -1, 1, 0, 1, 38.95),
])
sketch13.setExpression("Constraints[3]", "Params.sketch13_radius")
pocket11 = body.newObject("PartDesign::Pocket", "Pocket010")
pocket11.Profile = sketch13
pocket11.setExpression("Length", "Params.pocket11_length")

sketch14 = body.newObject("Sketcher::SketchObject", "Sketch013")
sketch14.AttachmentSupport = (doc.getObject("YZ_Plane"), [""])
sketch14.MapMode = "FlatFace"
sketch14.AttachmentOffset = App.Placement(Vector(0, 0, -35.1), App.Rotation())
sketch14.addGeometry([
    Part.LineSegment(Vector(39, -15.7, 0), Vector(39, -9.4, 0)),
    Part.ArcOfCircle(Part.Circle(Vector(39, -12.6, 0), Vector(0, 0, 1), 3.1), math.radians(90), math.radians(270)),
], False)
sketch14.addConstraint([
    Sketcher.Constraint("Coincident", 0, 1, 1, 2),
    Sketcher.Constraint("Coincident", 1, 1, 0, 2),
    Sketcher.Constraint("Vertical", 0),
    Sketcher.Constraint("Vertical", 1, 3, 0, 1),
    Sketcher.Constraint("Radius", 1, 3.15),
    Sketcher.Constraint("DistanceY", 0, 1, -1, 1, 15.7),
    Sketcher.Constraint("DistanceX", -1, 1, 1, 3, 38.95),
])
sketch14.setExpression("Constraints[4]", "Params.sketch14_radius")
pocket12 = body.newObject("PartDesign::Pocket", "Pocket011")
pocket12.Profile = sketch14
pocket12.setExpression("Length", "Params.pocket12_length")

sketch15 = body.newObject("Sketcher::SketchObject", "Sketch014")
sketch15.AttachmentSupport = (doc.getObject("YZ_Plane"), [""])
sketch15.MapMode = "FlatFace"
sketch15.AttachmentOffset = App.Placement(Vector(0, 0, -35.1), App.Rotation())
sketch15.addGeometry([
    Part.ArcOfCircle(Part.Circle(Vector(26.9, -12.6, 0), Vector(0, 0, 1), 3.1), math.radians(-90), math.radians(90)),
    Part.LineSegment(Vector(26.9, -9.4, 0), Vector(26.9, -15.7, 0)),
], False)
sketch15.addConstraint([
    Sketcher.Constraint("Coincident", 0, 1, 1, 2),
    Sketcher.Constraint("Coincident", 1, 1, 0, 2),
    Sketcher.Constraint("Vertical", 1),
    Sketcher.Constraint("Radius", 0, 3.15),
    Sketcher.Constraint("DistanceY", 0, 1, -1, 1, 15.7),
    Sketcher.Constraint("DistanceX", -1, 1, 0, 3, 26.95),
    Sketcher.Constraint("DistanceX", -1, 1, 0, 1, 26.95),
])
sketch15.setExpression("Constraints[3]", "Params.sketch15_radius")
pocket13 = body.newObject("PartDesign::Pocket", "Pocket012")
pocket13.Profile = sketch15
pocket13.Type = "UpToFirst"

sketch16 = body.newObject("Sketcher::SketchObject", "Sketch015")
sketch16.AttachmentSupport = (doc.getObject("YZ_Plane"), [""])
sketch16.MapMode = "FlatFace"
sketch16.AttachmentOffset = App.Placement(Vector(0, 0, -35.1), App.Rotation())
sketch16.addGeometry([
    Part.LineSegment(Vector(26.9, -15.7, 0), Vector(26.9, -9.4, 0)),
    Part.ArcOfCircle(Part.Circle(Vector(26.9, -12.6, 0), Vector(0, 0, 1), 3.1), math.radians(90), math.radians(270)),
], False)
sketch16.addConstraint([
    Sketcher.Constraint("Coincident", 0, 1, 1, 2),
    Sketcher.Constraint("Coincident", 1, 1, 0, 2),
    Sketcher.Constraint("Vertical", 0),
    Sketcher.Constraint("Vertical", 1, 3, 0, 1),
    Sketcher.Constraint("Radius", 1, 3.15),
    Sketcher.Constraint("DistanceY", 0, 1, -1, 1, 15.7),
    Sketcher.Constraint("DistanceX", -1, 1, 1, 3, 26.95),
])
sketch16.setExpression("Constraints[4]", "Params.sketch16_radius")
pocket14 = body.newObject("PartDesign::Pocket", "Pocket013")
pocket14.Profile = sketch16
pocket14.Type = "UpToFirst"

sketch17 = body.newObject("Sketcher::SketchObject", "Sketch016")
sketch17.AttachmentSupport = (doc.getObject("YZ_Plane"), [""])
sketch17.MapMode = "FlatFace"
sketch17.AttachmentOffset = App.Placement(Vector(0, 0, -35.1), App.Rotation())
sketch17.addGeometry([
    Part.ArcOfCircle(Part.Circle(Vector(26.9, -12.6, 0), Vector(0, 0, 1), 3.1), math.radians(-90), math.radians(90)),
    Part.LineSegment(Vector(26.9, -9.4, 0), Vector(26.9, -15.7, 0)),
], False)
sketch17.addConstraint([
    Sketcher.Constraint("Coincident", 0, 1, 1, 2),
    Sketcher.Constraint("Coincident", 1, 1, 0, 2),
    Sketcher.Constraint("Vertical", 1),
    Sketcher.Constraint("Radius", 0, 3.15),
    Sketcher.Constraint("DistanceY", 0, 1, -1, 1, 15.7),
    Sketcher.Constraint("DistanceX", -1, 1, 0, 3, 26.95),
    Sketcher.Constraint("DistanceX", -1, 1, 0, 1, 26.95),
])
sketch17.setExpression("Constraints[3]", "Params.sketch17_radius")
pocket15 = body.newObject("PartDesign::Pocket", "Pocket014")
pocket15.Profile = sketch17
pocket15.setExpression("Length", "Params.pocket15_length")

sketch18 = body.newObject("Sketcher::SketchObject", "Sketch017")
sketch18.AttachmentSupport = (doc.getObject("YZ_Plane"), [""])
sketch18.MapMode = "FlatFace"
sketch18.AttachmentOffset = App.Placement(Vector(0, 0, -35.1), App.Rotation())
sketch18.addGeometry([
    Part.LineSegment(Vector(26.9, -15.7, 0), Vector(26.9, -9.4, 0)),
    Part.ArcOfCircle(Part.Circle(Vector(26.9, -12.6, 0), Vector(0, 0, 1), 3.1), math.radians(90), math.radians(270)),
], False)
sketch18.addConstraint([
    Sketcher.Constraint("Coincident", 0, 1, 1, 2),
    Sketcher.Constraint("Coincident", 1, 1, 0, 2),
    Sketcher.Constraint("Vertical", 0),
    Sketcher.Constraint("Vertical", 1, 3, 0, 1),
    Sketcher.Constraint("Radius", 1, 3.15),
    Sketcher.Constraint("DistanceY", 0, 1, -1, 1, 15.7),
    Sketcher.Constraint("DistanceX", -1, 1, 1, 3, 26.95),
])
sketch18.setExpression("Constraints[4]", "Params.sketch18_radius")
pocket16 = body.newObject("PartDesign::Pocket", "Pocket015")
pocket16.Profile = sketch18
pocket16.setExpression("Length", "Params.pocket16_length")

sketch19 = body.newObject("Sketcher::SketchObject", "Sketch018")
sketch19.AttachmentSupport = (doc.getObject("YZ_Plane"), [""])
sketch19.MapMode = "FlatFace"
sketch19.AttachmentOffset = App.Placement(Vector(0, 0, -35.1), App.Rotation())
sketch19.addGeometry([
    Part.ArcOfCircle(Part.Circle(Vector(26.9, 12.6, 0), Vector(0, 0, 1), 3.1), math.radians(-90), math.radians(90)),
    Part.LineSegment(Vector(26.9, 15.7, 0), Vector(26.9, 9.4, 0)),
], False)
sketch19.addConstraint([
    Sketcher.Constraint("Coincident", 0, 1, 1, 2),
    Sketcher.Constraint("Coincident", 1, 1, 0, 2),
    Sketcher.Constraint("Vertical", 1),
    Sketcher.Constraint("Radius", 0, 3.15),
    Sketcher.Constraint("DistanceY", -1, 1, 0, 1, 9.4),
    Sketcher.Constraint("DistanceX", -1, 1, 0, 3, 26.95),
    Sketcher.Constraint("DistanceX", -1, 1, 0, 1, 26.95),
])
sketch19.setExpression("Constraints[3]", "Params.sketch19_radius")
pocket17 = body.newObject("PartDesign::Pocket", "Pocket016")
pocket17.Profile = sketch19
pocket17.setExpression("Length", "Params.pocket17_length")

sketch20 = body.newObject("Sketcher::SketchObject", "Sketch019")
sketch20.AttachmentSupport = (doc.getObject("YZ_Plane"), [""])
sketch20.MapMode = "FlatFace"
sketch20.AttachmentOffset = App.Placement(Vector(0, 0, -35.1), App.Rotation())
sketch20.addGeometry([
    Part.LineSegment(Vector(26.9, 9.4, 0), Vector(26.9, 15.7, 0)),
    Part.ArcOfCircle(Part.Circle(Vector(26.9, 12.6, 0), Vector(0, 0, 1), 3.1), math.radians(90), math.radians(270)),
], False)
sketch20.addConstraint([
    Sketcher.Constraint("Coincident", 0, 1, 1, 2),
    Sketcher.Constraint("Coincident", 1, 1, 0, 2),
    Sketcher.Constraint("Vertical", 0),
    Sketcher.Constraint("Vertical", 1, 3, 0, 1),
    Sketcher.Constraint("Radius", 1, 3.15),
    Sketcher.Constraint("DistanceY", -1, 1, 0, 1, 9.4),
    Sketcher.Constraint("DistanceX", -1, 1, 1, 3, 26.95),
])
sketch20.setExpression("Constraints[4]", "Params.sketch20_radius")
pocket18 = body.newObject("PartDesign::Pocket", "Pocket017")
pocket18.Profile = sketch20
pocket18.setExpression("Length", "Params.pocket18_length")
doc.recompute()

fillet = body.newObject("PartDesign::Fillet", "Fillet")
fillet.Base = (pocket18, edges_at(pocket18, [(-37, 0, 0), (-35.1, 1.9, 0)]))
fillet.setExpression("Radius", "Params.fillet_radius")

doc.recompute()
